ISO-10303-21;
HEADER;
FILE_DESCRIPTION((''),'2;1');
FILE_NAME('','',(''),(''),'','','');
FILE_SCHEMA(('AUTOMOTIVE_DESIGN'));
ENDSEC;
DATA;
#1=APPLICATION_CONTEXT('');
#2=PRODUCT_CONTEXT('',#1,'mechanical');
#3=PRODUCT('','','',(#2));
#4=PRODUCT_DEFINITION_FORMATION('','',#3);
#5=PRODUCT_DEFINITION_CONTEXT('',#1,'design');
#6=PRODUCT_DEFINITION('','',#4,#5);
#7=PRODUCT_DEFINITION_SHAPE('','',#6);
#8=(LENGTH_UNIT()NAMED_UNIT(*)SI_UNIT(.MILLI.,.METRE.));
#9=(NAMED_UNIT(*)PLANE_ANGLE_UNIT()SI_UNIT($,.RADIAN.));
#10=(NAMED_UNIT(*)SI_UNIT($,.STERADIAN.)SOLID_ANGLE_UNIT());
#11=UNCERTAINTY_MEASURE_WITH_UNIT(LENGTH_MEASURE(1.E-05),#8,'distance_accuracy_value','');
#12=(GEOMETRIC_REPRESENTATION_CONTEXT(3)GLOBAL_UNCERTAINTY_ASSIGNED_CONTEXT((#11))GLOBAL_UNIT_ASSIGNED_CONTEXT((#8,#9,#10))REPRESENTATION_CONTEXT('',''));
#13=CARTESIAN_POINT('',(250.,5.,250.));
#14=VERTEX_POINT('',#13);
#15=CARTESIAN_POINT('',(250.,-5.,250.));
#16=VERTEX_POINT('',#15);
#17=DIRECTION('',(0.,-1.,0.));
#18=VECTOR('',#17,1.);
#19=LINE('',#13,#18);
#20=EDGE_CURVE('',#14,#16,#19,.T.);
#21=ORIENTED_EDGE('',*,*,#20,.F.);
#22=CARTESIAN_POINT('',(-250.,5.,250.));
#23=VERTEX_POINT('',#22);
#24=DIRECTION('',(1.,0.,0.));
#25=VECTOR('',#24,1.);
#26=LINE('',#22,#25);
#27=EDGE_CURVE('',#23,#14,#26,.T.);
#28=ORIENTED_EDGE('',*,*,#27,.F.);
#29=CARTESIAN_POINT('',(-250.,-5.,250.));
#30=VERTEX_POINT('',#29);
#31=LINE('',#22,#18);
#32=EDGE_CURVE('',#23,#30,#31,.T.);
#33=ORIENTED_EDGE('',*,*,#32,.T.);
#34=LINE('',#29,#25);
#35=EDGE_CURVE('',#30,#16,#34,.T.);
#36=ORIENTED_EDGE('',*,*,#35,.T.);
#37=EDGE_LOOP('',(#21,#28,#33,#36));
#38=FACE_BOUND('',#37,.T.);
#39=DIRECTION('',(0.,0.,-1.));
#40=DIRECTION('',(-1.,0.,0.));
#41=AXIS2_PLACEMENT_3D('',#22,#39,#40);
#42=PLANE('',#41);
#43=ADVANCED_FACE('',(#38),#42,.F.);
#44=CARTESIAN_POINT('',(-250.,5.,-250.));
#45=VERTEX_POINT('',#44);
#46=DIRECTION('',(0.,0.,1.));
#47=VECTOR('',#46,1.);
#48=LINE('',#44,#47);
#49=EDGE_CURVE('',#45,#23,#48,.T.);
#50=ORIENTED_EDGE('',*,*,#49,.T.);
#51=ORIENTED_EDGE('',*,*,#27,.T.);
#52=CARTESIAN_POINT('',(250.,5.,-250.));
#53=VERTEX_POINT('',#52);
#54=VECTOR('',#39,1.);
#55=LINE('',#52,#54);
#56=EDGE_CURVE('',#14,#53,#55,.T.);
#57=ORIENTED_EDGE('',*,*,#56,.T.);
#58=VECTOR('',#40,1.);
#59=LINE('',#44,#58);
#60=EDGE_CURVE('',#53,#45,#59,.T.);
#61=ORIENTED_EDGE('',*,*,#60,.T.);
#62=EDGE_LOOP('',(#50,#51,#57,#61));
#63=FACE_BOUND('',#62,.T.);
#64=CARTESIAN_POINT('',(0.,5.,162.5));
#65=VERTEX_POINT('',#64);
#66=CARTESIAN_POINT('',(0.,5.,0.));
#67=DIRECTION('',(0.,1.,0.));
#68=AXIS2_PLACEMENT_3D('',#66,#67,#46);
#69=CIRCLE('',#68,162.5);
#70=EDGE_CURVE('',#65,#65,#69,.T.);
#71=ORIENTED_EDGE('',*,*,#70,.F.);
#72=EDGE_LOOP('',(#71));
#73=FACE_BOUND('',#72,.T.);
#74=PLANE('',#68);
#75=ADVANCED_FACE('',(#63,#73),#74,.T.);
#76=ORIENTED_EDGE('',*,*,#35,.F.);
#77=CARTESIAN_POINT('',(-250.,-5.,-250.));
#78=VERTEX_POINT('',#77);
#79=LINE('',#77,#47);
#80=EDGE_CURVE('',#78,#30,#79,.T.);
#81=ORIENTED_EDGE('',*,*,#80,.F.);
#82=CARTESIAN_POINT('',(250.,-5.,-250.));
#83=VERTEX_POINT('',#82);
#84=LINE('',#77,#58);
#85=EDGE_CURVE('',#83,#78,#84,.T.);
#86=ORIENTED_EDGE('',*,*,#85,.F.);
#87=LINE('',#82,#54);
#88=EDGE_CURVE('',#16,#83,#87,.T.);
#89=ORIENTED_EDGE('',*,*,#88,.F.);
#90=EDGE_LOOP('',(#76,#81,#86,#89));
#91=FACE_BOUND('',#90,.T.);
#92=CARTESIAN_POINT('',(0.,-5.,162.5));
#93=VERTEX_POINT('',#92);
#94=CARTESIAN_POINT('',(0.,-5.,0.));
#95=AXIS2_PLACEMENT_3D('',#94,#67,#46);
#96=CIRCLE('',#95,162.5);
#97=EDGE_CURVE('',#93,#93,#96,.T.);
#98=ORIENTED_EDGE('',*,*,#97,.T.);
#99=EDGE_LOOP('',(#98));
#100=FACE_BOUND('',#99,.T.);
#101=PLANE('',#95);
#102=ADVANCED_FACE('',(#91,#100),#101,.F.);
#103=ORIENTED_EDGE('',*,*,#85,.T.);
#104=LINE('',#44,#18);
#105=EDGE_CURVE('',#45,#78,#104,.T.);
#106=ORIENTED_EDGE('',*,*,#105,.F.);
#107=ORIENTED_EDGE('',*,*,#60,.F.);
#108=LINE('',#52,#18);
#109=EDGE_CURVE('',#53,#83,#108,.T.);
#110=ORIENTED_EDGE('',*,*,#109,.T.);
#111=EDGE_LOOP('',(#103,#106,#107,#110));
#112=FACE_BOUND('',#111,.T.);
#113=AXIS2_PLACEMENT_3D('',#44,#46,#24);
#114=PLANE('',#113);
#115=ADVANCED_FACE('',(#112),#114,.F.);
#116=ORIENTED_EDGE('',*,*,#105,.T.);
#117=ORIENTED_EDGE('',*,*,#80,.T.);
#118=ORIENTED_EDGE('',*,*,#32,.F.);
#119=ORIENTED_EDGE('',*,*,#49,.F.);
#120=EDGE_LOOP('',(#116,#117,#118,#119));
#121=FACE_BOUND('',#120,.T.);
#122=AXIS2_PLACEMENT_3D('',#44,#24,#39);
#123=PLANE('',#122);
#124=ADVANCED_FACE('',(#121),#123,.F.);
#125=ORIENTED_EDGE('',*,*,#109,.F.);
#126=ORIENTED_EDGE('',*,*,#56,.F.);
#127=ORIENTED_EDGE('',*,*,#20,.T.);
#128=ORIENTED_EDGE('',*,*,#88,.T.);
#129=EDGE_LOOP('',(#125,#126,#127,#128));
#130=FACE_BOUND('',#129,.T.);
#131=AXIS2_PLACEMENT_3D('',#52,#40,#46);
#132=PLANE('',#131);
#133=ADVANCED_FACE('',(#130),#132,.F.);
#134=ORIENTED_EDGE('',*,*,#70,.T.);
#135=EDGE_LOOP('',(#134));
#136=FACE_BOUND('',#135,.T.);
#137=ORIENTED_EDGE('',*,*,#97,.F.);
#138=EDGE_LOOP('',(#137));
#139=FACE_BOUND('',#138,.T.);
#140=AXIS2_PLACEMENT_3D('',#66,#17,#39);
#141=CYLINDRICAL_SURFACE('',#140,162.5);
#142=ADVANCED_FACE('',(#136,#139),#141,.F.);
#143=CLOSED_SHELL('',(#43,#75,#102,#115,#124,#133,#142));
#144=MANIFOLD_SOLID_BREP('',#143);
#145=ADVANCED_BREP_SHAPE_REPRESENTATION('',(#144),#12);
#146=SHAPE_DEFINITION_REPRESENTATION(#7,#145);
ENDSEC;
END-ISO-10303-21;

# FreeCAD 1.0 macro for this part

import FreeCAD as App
import Part
import Sketcher

V = App.Vector

doc = App.newDocument("Part")
body = doc.addObject("PartDesign::Body", "Body")

sketch1 = body.newObject("Sketcher::SketchObject", "Sketch")
sketch1.AttachmentSupport = (doc.getObject("XZ_Plane"), [""])
sketch1.MapMode = "FlatFace"
sketch1.addGeometry(Part.LineSegment(V(-250, -250, 0), V(-250, 250, 0)), False)
sketch1.addGeometry(Part.LineSegment(V(-250, 250, 0), V(250, 250, 0)), False)
sketch1.addGeometry(Part.LineSegment(V(250, 250, 0), V(250, -250, 0)), False)
sketch1.addGeometry(Part.LineSegment(V(250, -250, 0), V(-250, -250, 0)), False)
sketch1.addGeometry(Part.Circle(V(0, 0, 0), V(0, 0, 1), 162), False)
sketch1.addConstraint(Sketcher.Constraint("Coincident", 0, 2, 1, 1))
sketch1.addConstraint(Sketcher.Constraint("Coincident", 1, 2, 2, 1))
sketch1.addConstraint(Sketcher.Constraint("Coincident", 2, 2, 3, 1))
sketch1.addConstraint(Sketcher.Constraint("Coincident", 3, 2, 0, 1))
sketch1.addConstraint(Sketcher.Constraint("Vertical", 0))
sketch1.addConstraint(Sketcher.Constraint("Horizontal", 1))
sketch1.addConstraint(Sketcher.Constraint("Vertical", 2))
sketch1.addConstraint(Sketcher.Constraint("Horizontal", 3))
sketch1.addConstraint(Sketcher.Constraint("Coincident", 4, 3, -1, 1))
sketch1.addConstraint(Sketcher.Constraint("Symmetric", 0, 2, 2, 2, -1, 1))
sketch1.addConstraint(Sketcher.Constraint("Equal", 3, 0))
sketch1.addConstraint(Sketcher.Constraint("Diameter", 4, 325.0))
sketch1.addConstraint(Sketcher.Constraint("DistanceX", 1, 1, 1, 2, 500.0))
pad1 = body.newObject("PartDesign::Pad", "Pad")
pad1.Profile = sketch1
pad1.Length = 10
pad1.Midplane = True

doc.recompute()
